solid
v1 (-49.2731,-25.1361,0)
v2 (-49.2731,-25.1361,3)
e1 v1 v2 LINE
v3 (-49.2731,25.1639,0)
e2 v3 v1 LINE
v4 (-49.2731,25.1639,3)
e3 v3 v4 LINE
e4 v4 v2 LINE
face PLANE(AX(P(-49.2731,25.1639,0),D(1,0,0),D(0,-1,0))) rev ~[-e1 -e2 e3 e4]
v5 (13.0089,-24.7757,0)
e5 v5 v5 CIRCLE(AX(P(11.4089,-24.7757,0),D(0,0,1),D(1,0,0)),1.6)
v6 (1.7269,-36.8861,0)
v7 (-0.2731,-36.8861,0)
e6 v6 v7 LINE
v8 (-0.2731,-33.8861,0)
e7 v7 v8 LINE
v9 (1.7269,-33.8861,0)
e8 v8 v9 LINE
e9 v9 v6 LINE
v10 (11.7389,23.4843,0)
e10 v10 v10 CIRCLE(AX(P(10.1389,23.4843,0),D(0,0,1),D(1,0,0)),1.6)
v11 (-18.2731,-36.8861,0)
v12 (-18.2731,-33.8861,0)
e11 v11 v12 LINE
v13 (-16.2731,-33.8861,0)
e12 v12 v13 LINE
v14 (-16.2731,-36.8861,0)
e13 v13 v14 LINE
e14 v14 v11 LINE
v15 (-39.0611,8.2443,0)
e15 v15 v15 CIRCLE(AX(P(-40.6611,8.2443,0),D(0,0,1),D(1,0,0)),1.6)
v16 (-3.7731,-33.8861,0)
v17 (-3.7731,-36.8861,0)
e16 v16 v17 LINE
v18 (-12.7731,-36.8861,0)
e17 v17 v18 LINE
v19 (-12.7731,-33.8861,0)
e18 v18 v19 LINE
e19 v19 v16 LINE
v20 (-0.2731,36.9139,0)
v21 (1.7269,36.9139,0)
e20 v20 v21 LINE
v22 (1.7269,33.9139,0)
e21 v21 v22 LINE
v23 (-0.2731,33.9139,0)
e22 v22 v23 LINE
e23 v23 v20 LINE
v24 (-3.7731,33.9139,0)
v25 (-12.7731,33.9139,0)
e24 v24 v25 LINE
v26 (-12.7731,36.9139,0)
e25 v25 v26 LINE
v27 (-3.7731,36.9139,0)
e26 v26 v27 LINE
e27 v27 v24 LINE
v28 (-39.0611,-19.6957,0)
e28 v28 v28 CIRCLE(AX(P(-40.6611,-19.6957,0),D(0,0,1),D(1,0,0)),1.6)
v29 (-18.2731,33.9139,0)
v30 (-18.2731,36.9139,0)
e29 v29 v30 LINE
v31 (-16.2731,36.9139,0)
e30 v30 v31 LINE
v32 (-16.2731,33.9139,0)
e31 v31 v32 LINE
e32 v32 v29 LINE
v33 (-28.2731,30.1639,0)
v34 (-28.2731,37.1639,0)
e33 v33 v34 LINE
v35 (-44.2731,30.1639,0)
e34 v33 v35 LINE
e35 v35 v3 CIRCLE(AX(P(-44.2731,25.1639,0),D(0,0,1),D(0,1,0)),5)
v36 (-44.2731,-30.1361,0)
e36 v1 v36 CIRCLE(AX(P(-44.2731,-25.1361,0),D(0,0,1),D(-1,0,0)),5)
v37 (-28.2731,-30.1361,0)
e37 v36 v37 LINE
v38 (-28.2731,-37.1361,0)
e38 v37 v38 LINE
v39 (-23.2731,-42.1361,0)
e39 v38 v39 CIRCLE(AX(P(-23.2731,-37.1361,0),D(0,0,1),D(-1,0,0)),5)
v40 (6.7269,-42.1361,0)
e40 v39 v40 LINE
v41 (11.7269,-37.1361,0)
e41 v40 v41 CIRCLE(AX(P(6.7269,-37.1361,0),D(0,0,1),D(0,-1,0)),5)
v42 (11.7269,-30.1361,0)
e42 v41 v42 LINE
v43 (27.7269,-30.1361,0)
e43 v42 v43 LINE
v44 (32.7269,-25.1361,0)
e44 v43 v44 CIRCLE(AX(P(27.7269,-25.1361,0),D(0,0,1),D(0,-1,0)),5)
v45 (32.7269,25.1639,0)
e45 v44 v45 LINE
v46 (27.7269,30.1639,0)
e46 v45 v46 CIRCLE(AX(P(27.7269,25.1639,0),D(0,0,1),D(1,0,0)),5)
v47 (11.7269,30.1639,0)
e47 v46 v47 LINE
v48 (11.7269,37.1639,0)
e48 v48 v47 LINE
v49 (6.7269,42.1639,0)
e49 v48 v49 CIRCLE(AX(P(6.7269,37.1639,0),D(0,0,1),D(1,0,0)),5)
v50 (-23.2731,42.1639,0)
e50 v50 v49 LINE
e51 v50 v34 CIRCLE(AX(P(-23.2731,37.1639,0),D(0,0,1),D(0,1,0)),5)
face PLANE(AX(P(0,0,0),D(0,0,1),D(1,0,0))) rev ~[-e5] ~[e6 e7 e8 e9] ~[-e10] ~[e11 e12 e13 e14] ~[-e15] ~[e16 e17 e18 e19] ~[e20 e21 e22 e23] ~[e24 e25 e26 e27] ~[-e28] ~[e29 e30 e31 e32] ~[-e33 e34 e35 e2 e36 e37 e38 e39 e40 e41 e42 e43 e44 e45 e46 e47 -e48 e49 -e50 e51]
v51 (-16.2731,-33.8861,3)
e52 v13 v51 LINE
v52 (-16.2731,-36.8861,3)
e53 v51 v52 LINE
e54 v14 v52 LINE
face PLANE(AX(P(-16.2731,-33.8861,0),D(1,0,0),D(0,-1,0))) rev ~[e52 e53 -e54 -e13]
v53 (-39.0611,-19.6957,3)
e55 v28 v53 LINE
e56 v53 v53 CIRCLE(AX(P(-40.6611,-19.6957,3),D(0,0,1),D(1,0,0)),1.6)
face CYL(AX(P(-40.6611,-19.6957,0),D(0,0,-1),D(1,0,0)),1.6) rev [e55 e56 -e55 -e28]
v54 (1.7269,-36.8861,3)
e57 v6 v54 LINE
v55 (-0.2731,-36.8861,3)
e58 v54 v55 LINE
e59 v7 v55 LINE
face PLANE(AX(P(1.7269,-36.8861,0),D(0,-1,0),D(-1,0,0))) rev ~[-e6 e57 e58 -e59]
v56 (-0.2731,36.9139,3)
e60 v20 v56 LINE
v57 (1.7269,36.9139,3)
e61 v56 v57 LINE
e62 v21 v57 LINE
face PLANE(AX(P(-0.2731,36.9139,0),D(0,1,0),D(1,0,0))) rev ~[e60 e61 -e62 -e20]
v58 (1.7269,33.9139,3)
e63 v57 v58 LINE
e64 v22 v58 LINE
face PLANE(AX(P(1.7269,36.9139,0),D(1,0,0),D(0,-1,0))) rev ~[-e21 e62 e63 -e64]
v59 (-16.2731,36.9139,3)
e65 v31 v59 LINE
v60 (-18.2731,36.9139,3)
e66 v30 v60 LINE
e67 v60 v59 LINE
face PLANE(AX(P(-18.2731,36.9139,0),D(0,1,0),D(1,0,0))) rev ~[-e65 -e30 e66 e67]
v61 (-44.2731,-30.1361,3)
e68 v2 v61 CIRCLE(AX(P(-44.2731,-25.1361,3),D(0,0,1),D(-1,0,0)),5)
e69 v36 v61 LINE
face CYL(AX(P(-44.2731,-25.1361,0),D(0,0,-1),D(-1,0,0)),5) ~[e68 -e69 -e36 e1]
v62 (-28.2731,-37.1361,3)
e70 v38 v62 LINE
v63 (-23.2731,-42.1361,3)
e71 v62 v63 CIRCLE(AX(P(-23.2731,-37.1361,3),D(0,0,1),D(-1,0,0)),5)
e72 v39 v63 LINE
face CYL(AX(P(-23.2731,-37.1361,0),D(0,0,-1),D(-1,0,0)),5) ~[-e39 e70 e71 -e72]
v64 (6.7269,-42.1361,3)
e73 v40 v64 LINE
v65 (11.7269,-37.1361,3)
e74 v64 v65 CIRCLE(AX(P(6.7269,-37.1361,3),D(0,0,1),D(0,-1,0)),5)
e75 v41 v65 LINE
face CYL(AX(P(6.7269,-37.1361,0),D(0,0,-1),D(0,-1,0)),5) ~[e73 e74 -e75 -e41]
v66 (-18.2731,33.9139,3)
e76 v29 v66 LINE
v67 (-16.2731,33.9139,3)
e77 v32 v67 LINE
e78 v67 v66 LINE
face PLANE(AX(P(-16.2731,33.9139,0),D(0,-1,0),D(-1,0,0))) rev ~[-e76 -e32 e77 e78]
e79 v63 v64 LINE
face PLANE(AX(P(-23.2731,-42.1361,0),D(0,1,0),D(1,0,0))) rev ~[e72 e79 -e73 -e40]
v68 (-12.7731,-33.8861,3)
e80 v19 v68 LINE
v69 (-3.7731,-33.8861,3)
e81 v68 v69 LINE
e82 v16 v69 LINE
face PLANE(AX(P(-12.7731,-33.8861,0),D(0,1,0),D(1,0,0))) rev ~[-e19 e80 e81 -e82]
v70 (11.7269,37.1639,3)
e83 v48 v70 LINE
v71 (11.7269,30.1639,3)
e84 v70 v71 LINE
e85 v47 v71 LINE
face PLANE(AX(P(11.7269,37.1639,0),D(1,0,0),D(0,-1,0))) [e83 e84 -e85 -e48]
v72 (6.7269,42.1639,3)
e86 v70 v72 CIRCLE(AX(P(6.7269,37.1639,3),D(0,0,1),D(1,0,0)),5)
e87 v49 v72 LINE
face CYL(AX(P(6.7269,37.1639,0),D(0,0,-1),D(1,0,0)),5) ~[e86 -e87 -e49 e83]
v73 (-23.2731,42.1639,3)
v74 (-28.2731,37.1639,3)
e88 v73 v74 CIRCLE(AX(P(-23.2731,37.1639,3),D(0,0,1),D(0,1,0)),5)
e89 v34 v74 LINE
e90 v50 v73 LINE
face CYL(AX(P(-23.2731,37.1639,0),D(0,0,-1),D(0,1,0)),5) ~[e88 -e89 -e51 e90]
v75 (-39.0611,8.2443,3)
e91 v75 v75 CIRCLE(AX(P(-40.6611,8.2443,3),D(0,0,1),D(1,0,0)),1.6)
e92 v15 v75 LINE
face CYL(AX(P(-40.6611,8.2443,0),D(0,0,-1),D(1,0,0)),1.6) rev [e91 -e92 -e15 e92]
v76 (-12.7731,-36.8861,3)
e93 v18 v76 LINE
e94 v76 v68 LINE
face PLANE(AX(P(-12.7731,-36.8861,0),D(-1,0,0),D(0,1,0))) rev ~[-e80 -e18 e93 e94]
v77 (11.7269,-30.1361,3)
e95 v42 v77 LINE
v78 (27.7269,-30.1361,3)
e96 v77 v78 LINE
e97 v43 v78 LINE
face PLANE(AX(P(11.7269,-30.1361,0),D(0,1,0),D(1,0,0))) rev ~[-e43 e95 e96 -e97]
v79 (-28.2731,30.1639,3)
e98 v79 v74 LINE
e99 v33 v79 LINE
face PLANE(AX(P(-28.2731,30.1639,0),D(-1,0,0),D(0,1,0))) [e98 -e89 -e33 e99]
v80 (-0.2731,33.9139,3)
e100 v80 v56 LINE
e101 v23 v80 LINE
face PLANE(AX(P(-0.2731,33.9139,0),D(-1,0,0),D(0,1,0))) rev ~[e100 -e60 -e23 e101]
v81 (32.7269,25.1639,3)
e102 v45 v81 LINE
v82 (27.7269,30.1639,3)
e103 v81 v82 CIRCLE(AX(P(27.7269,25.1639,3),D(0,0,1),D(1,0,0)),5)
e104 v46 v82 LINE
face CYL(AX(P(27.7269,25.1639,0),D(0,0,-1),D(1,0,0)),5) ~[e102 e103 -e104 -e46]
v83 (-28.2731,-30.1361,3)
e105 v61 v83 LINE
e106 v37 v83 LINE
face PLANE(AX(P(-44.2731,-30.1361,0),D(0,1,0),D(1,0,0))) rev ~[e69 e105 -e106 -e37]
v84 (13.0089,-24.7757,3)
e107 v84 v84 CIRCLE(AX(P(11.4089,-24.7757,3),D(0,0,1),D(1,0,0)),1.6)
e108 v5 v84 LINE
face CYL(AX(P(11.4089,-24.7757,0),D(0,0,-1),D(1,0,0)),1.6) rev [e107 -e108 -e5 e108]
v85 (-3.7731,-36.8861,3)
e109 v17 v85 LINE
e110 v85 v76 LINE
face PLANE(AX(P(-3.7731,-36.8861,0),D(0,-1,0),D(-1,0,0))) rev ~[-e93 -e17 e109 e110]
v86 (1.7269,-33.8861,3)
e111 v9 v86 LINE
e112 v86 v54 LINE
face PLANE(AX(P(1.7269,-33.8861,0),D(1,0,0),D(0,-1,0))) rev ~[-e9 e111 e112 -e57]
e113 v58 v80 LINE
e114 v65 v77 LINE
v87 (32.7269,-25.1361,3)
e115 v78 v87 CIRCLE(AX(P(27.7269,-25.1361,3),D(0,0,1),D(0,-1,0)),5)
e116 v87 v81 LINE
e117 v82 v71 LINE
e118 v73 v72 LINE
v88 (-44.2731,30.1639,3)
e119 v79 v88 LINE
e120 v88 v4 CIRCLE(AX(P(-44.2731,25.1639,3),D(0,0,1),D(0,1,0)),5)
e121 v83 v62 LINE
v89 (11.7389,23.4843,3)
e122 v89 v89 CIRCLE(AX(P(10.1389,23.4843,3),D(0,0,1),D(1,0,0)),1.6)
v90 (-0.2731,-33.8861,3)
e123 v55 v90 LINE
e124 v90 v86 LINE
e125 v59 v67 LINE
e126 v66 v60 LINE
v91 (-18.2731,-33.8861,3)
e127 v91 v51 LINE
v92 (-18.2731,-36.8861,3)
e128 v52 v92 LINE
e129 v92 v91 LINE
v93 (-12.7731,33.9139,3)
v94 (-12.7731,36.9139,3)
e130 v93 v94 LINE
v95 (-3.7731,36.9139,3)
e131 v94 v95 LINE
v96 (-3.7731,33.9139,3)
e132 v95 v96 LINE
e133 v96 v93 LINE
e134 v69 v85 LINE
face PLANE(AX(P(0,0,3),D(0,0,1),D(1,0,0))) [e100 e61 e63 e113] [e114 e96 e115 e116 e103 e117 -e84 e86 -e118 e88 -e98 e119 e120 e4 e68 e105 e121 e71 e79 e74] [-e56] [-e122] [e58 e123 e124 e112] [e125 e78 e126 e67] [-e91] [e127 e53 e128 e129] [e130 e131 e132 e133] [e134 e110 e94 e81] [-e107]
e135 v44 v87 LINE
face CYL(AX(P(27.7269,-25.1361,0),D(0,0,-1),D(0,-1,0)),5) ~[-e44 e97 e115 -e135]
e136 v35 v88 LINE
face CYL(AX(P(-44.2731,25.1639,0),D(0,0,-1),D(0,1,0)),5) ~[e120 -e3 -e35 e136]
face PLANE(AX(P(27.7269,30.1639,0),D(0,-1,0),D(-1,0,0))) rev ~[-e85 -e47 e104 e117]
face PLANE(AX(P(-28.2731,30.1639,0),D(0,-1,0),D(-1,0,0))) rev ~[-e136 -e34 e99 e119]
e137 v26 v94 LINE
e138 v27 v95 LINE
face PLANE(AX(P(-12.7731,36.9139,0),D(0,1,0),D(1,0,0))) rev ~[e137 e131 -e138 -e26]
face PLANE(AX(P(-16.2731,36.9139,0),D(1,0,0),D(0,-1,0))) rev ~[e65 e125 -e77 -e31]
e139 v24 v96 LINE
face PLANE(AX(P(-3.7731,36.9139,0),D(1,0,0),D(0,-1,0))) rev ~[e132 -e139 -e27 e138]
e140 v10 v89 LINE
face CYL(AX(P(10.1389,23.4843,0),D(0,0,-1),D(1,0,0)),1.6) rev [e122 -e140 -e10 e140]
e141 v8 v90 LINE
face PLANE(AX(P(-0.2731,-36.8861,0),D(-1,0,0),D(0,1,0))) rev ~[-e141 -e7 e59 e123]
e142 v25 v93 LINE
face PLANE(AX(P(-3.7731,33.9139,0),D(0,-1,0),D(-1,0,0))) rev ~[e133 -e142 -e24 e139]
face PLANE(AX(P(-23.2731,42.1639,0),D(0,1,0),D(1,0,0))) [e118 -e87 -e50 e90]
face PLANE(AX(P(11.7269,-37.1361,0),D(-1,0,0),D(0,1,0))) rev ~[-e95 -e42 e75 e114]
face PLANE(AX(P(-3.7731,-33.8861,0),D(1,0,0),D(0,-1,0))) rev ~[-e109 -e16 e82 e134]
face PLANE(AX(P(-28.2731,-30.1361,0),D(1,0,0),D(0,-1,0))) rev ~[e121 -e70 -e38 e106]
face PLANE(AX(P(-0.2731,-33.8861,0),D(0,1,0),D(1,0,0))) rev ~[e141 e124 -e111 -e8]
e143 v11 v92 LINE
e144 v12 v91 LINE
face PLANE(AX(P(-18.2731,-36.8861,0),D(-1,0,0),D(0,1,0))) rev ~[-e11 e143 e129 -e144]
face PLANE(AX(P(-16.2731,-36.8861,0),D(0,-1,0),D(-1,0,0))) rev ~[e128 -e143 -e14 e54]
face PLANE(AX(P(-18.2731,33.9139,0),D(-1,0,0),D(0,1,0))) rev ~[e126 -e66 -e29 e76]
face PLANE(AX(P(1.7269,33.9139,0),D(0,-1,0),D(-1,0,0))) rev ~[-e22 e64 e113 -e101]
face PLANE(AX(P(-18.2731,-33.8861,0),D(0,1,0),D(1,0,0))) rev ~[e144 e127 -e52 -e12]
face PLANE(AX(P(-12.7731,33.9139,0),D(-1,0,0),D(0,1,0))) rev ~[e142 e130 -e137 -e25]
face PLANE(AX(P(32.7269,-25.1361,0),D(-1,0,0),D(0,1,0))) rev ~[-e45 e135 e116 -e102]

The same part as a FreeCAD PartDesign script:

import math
import FreeCAD as App
import Part
import Sketcher

V = App.Vector


def add_polygon(sketch, points):
    """Adds a closed chain of lines whose ends are joined by coincident constraints."""
    first, n = sketch.GeometryCount, len(points)
    for a, b in zip(points, points[1:] + points[:1]):
        sketch.addGeometry(Part.LineSegment(App.Vector(*a, 0), App.Vector(*b, 0)), False)
    for i in range(n):
        sketch.addConstraint(Sketcher.Constraint("Coincident", first + i, 2, first + (i + 1) % n, 1))

doc = App.newDocument("Part")
body = doc.addObject("PartDesign::Body", "Body")

# Sketch on XY plane
sketch1 = body.newObject("Sketcher::SketchObject", "Sketch")
sketch1.AttachmentSupport = (doc.getObject("XY_Plane"), [""])
sketch1.MapMode = "FlatFace"
sketch1.addGeometry(Part.LineSegment(V(-28.2731, 37.1639, 0), V(-28.2731, 30.1639, 0)), False)  # 0
sketch1.addGeometry(Part.LineSegment(V(-28.2731, 30.1639, 0), V(-44.2731, 30.1639, 0)), False)  # 1
sketch1.addGeometry(Part.ArcOfCircle(Part.Circle(V(-44.2731, 25.1639, 0), V(0, 0, 1), 5), math.radians(90), math.radians(180)), False)  # 2
sketch1.addGeometry(Part.LineSegment(V(-49.2731, 25.1639, 0), V(-49.2731, -25.1361, 0)), False)  # 3
sketch1.addGeometry(Part.ArcOfCircle(Part.Circle(V(-44.2731, -25.1361, 0), V(0, 0, 1), 5), math.radians(180), math.radians(270)), False)  # 4
sketch1.addGeometry(Part.LineSegment(V(-44.2731, -30.1361, 0), V(-28.2731, -30.1361, 0)), False)  # 5
sketch1.addGeometry(Part.LineSegment(V(-28.2731, -30.1361, 0), V(-28.2731, -37.1361, 0)), False)  # 6
sketch1.addGeometry(Part.ArcOfCircle(Part.Circle(V(-23.2731, -37.1361, 0), V(0, 0, 1), 5), math.radians(180), math.radians(270)), False)  # 7
sketch1.addGeometry(Part.LineSegment(V(-23.2731, -42.1361, 0), V(6.7269, -42.1361, 0)), False)  # 8
sketch1.addGeometry(Part.ArcOfCircle(Part.Circle(V(6.7269, -37.1361, 0), V(0, 0, 1), 5), math.radians(-90), math.radians(0)), False)  # 9
sketch1.addGeometry(Part.LineSegment(V(11.7269, -37.1361, 0), V(11.7269, -30.1361, 0)), False)  # 10
sketch1.addGeometry(Part.LineSegment(V(11.7269, -30.1361, 0), V(27.7269, -30.1361, 0)), False)  # 11
sketch1.addGeometry(Part.ArcOfCircle(Part.Circle(V(27.7269, -25.1361, 0), V(0, 0, 1), 5), math.radians(-90), math.radians(0)), False)  # 12
sketch1.addGeometry(Part.LineSegment(V(32.7269, -25.1361, 0), V(32.7269, 25.1639, 0)), False)  # 13
sketch1.addGeometry(Part.ArcOfCircle(Part.Circle(V(27.7269, 25.1639, 0), V(0, 0, 1), 5), math.radians(0), math.radians(90)), False)  # 14
sketch1.addGeometry(Part.LineSegment(V(27.7269, 30.1639, 0), V(11.7269, 30.1639, 0)), False)  # 15
sketch1.addGeometry(Part.LineSegment(V(11.7269, 30.1639, 0), V(11.7269, 37.1639, 0)), False)  # 16
sketch1.addGeometry(Part.ArcOfCircle(Part.Circle(V(6.7269, 37.1639, 0), V(0, 0, 1), 5), math.radians(0), math.radians(90)), False)  # 17
sketch1.addGeometry(Part.LineSegment(V(6.7269, 42.1639, 0), V(-23.2731, 42.1639, 0)), False)  # 18
sketch1.addGeometry(Part.ArcOfCircle(Part.Circle(V(-23.2731, 37.1639, 0), V(0, 0, 1), 5), math.radians(90), math.radians(180)), False)  # 19
add_polygon(sketch1, [(-18.2731, -33.8861), (-16.2731, -33.8861), (-16.2731, -36.8861), (-18.2731, -36.8861)])  # lines 20-23
sketch1.addGeometry(Part.Circle(V(-40.6611, -19.6957, 0), V(0, 0, 1), 1.6), False)  # 24
add_polygon(sketch1, [(-12.7731, -33.8861), (-3.7731, -33.8861), (-3.7731, -36.8861), (-12.7731, -36.8861)])  # lines 25-28
add_polygon(sketch1, [(-0.2731, -33.8861), (1.7269, -33.8861), (1.7269, -36.8861), (-0.2731, -36.8861)])  # lines 29-32
sketch1.addGeometry(Part.Circle(V(11.4089, -24.7757, 0), V(0, 0, 1), 1.6), False)  # 33
sketch1.addGeometry(Part.Circle(V(-40.6611, 8.2443, 0), V(0, 0, 1), 1.6), False)  # 34
add_polygon(sketch1, [(-18.2731, 36.9139), (-16.2731, 36.9139), (-16.2731, 33.9139), (-18.2731, 33.9139)])  # lines 35-38
sketch1.addGeometry(Part.Circle(V(10.1389, 23.4843, 0), V(0, 0, 1), 1.6), False)  # 39
add_polygon(sketch1, [(-12.7731, 36.9139), (-3.7731, 36.9139), (-3.7731, 33.9139), (-12.7731, 33.9139)])  # lines 40-43
add_polygon(sketch1, [(-0.2731, 36.9139), (1.7269, 36.9139), (1.7269, 33.9139), (-0.2731, 33.9139)])  # lines 44-47
sketch1.addConstraint([
    Sketcher.Constraint("Coincident", 0, 2, 1, 1),
    Sketcher.Constraint("Tangent", 1, 2, 2, 1),
    Sketcher.Constraint("Tangent", 2, 2, 3, 1),
    Sketcher.Constraint("Tangent", 3, 2, 4, 1),
    Sketcher.Constraint("Tangent", 4, 2, 5, 1),
    Sketcher.Constraint("Coincident", 5, 2, 6, 1),
    Sketcher.Constraint("Tangent", 6, 2, 7, 1),
    Sketcher.Constraint("Tangent", 7, 2, 8, 1),
    Sketcher.Constraint("Tangent", 8, 2, 9, 1),
    Sketcher.Constraint("Tangent", 9, 2, 10, 1),
    Sketcher.Constraint("Coincident", 10, 2, 11, 1),
    Sketcher.Constraint("Tangent", 11, 2, 12, 1),
    Sketcher.Constraint("Tangent", 12, 2, 13, 1),
    Sketcher.Constraint("Tangent", 13, 2, 14, 1),
    Sketcher.Constraint("Tangent", 14, 2, 15, 1),
    Sketcher.Constraint("Coincident", 15, 2, 16, 1),
    Sketcher.Constraint("Tangent", 16, 2, 17, 1),
    Sketcher.Constraint("Tangent", 17, 2, 18, 1),
    Sketcher.Constraint("Tangent", 18, 2, 19, 1),
    Sketcher.Constraint("Tangent", 19, 2, 0, 1),
    Sketcher.Constraint("Vertical", 0),
    Sketcher.Constraint("Horizontal", 1),
    Sketcher.Constraint("Vertical", 3),
    Sketcher.Constraint("Horizontal", 5),
    Sketcher.Constraint("Vertical", 6),
    Sketcher.Constraint("Horizontal", 8),
    Sketcher.Constraint("Vertical", 10),
    Sketcher.Constraint("Horizontal", 11),
    Sketcher.Constraint("Vertical", 13),
    Sketcher.Constraint("Horizontal", 15),
    Sketcher.Constraint("Vertical", 16),
    Sketcher.Constraint("Horizontal", 18),
    Sketcher.Constraint("Horizontal", 20),
    Sketcher.Constraint("Vertical", 21),
    Sketcher.Constraint("Horizontal", 22),
    Sketcher.Constraint("Vertical", 23),
    Sketcher.Constraint("Horizontal", 25),
    Sketcher.Constraint("Vertical", 26),
    Sketcher.Constraint("Horizontal", 27),
    Sketcher.Constraint("Vertical", 28),
    Sketcher.Constraint("Horizontal", 29),
    Sketcher.Constraint("Vertical", 30),
    Sketcher.Constraint("Horizontal", 31),
    Sketcher.Constraint("Vertical", 32),
    Sketcher.Constraint("Horizontal", 35),
    Sketcher.Constraint("Vertical", 36),
    Sketcher.Constraint("Horizontal", 37),
    Sketcher.Constraint("Vertical", 38),
    Sketcher.Constraint("Horizontal", 40),
    Sketcher.Constraint("Vertical", 41),
    Sketcher.Constraint("Horizontal", 42),
    Sketcher.Constraint("Vertical", 43),
    Sketcher.Constraint("Horizontal", 44),
    Sketcher.Constraint("Vertical", 45),
    Sketcher.Constraint("Horizontal", 46),
    Sketcher.Constraint("Vertical", 47),
    Sketcher.Constraint("Equal", 2, 4),
    Sketcher.Constraint("Equal", 4, 7),
    Sketcher.Constraint("Equal", 7, 9),
    Sketcher.Constraint("Equal", 9, 12),
    Sketcher.Constraint("Equal", 12, 14),
    Sketcher.Constraint("Equal", 14, 17),
    Sketcher.Constraint("Equal", 17, 19),
    Sketcher.Constraint("Equal", 24, 33),
    Sketcher.Constraint("Equal", 33, 34),
    Sketcher.Constraint("Equal", 34, 39),
    Sketcher.Constraint("Horizontal", 4, 3, 12, 3),
    Sketcher.Constraint("Horizontal", 2, 3, 14, 3),
    Sketcher.Constraint("Horizontal", 23, 2, 25, 2),
    Sketcher.Constraint("Horizontal", 22, 2, 26, 2),
    Sketcher.Constraint("Horizontal", 28, 2, 29, 2),
    Sketcher.Constraint("Horizontal", 27, 2, 30, 2),
    Sketcher.Constraint("Horizontal", 38, 2, 40, 2),
    Sketcher.Constraint("Horizontal", 37, 2, 41, 2),
    Sketcher.Constraint("Horizontal", 43, 2, 44, 2),
    Sketcher.Constraint("Horizontal", 42, 2, 45, 2),
    Sketcher.Constraint("Vertical", 9, 3, 17, 3),
    Sketcher.Constraint("Vertical", 7, 3, 19, 3),
    Sketcher.Constraint("Vertical", 24, 3, 34, 3),
    Sketcher.Constraint("Vertical", 21, 2, 35, 2),
    Sketcher.Constraint("Vertical", 23, 2, 37, 2),
    Sketcher.Constraint("Vertical", 26, 2, 40, 2),
    Sketcher.Constraint("Vertical", 28, 2, 42, 2),
    Sketcher.Constraint("Vertical", 30, 2, 44, 2),
    Sketcher.Constraint("Vertical", 32, 2, 46, 2),
    Sketcher.Constraint("Equal", 5, 11),
    Sketcher.Constraint("Equal", 22, 29),
    Sketcher.Constraint("Equal", 0, 6),
    Sketcher.Constraint("Equal", 32, 36),
    Sketcher.Constraint("Radius", 2, 5.0),
    Sketcher.Constraint("Diameter", 24, 3.2),
    Sketcher.Constraint("DistanceX", 1, 2, 1, 1, 16.0),
    Sketcher.Constraint("DistanceX", 8, 1, 8, 2, 30.0),
    Sketcher.Constraint("DistanceX", 20, 1, 20, 2, 2.0),
    Sketcher.Constraint("DistanceX", 25, 1, 25, 2, 9.0),
    Sketcher.Constraint("DistanceY", 0, 2, 0, 1, 7.0),
    Sketcher.Constraint("DistanceY", 21, 2, 21, 1, 3.0),
    Sketcher.Constraint("DistanceY", 3, 2, 3, 1, 50.3),
    Sketcher.Constraint("DistanceX", 7, 3, 20, 2, 7.0),
    Sketcher.Constraint("DistanceX", 29, 2, 9, 3, 5.0),
    Sketcher.Constraint("DistanceX", 25, 2, 9, 3, 10.5),
    Sketcher.Constraint("DistanceX", 24, 3, 33, 3, 52.07),
    Sketcher.Constraint("DistanceY", 33, 3, 24, 3, 5.08),
    Sketcher.Constraint("DistanceY", 24, 3, 34, 3, 27.94),
    Sketcher.Constraint("DistanceX", 39, 3, 33, 3, 1.27),
    Sketcher.Constraint("DistanceY", 33, 3, 39, 3, 48.26),
    Sketcher.Constraint("DistanceY", 7, 3, 20, 2, 3.25),
    Sketcher.Constraint("DistanceY", 35, 2, 19, 3, 0.25),
    Sketcher.Constraint("DistanceX", 2, 3, -1, 1, 44.273),
    Sketcher.Constraint("DistanceY", -1, 1, 2, 3, 25.164),
    Sketcher.Constraint("DistanceX", 24, 3, -1, 1, 40.661),
    Sketcher.Constraint("DistanceY", 24, 3, -1, 1, 19.6957),
])
pad1 = body.newObject("PartDesign::Pad", "Pad")
pad1.Profile = sketch1
pad1.Length = 3

doc.recompute()
